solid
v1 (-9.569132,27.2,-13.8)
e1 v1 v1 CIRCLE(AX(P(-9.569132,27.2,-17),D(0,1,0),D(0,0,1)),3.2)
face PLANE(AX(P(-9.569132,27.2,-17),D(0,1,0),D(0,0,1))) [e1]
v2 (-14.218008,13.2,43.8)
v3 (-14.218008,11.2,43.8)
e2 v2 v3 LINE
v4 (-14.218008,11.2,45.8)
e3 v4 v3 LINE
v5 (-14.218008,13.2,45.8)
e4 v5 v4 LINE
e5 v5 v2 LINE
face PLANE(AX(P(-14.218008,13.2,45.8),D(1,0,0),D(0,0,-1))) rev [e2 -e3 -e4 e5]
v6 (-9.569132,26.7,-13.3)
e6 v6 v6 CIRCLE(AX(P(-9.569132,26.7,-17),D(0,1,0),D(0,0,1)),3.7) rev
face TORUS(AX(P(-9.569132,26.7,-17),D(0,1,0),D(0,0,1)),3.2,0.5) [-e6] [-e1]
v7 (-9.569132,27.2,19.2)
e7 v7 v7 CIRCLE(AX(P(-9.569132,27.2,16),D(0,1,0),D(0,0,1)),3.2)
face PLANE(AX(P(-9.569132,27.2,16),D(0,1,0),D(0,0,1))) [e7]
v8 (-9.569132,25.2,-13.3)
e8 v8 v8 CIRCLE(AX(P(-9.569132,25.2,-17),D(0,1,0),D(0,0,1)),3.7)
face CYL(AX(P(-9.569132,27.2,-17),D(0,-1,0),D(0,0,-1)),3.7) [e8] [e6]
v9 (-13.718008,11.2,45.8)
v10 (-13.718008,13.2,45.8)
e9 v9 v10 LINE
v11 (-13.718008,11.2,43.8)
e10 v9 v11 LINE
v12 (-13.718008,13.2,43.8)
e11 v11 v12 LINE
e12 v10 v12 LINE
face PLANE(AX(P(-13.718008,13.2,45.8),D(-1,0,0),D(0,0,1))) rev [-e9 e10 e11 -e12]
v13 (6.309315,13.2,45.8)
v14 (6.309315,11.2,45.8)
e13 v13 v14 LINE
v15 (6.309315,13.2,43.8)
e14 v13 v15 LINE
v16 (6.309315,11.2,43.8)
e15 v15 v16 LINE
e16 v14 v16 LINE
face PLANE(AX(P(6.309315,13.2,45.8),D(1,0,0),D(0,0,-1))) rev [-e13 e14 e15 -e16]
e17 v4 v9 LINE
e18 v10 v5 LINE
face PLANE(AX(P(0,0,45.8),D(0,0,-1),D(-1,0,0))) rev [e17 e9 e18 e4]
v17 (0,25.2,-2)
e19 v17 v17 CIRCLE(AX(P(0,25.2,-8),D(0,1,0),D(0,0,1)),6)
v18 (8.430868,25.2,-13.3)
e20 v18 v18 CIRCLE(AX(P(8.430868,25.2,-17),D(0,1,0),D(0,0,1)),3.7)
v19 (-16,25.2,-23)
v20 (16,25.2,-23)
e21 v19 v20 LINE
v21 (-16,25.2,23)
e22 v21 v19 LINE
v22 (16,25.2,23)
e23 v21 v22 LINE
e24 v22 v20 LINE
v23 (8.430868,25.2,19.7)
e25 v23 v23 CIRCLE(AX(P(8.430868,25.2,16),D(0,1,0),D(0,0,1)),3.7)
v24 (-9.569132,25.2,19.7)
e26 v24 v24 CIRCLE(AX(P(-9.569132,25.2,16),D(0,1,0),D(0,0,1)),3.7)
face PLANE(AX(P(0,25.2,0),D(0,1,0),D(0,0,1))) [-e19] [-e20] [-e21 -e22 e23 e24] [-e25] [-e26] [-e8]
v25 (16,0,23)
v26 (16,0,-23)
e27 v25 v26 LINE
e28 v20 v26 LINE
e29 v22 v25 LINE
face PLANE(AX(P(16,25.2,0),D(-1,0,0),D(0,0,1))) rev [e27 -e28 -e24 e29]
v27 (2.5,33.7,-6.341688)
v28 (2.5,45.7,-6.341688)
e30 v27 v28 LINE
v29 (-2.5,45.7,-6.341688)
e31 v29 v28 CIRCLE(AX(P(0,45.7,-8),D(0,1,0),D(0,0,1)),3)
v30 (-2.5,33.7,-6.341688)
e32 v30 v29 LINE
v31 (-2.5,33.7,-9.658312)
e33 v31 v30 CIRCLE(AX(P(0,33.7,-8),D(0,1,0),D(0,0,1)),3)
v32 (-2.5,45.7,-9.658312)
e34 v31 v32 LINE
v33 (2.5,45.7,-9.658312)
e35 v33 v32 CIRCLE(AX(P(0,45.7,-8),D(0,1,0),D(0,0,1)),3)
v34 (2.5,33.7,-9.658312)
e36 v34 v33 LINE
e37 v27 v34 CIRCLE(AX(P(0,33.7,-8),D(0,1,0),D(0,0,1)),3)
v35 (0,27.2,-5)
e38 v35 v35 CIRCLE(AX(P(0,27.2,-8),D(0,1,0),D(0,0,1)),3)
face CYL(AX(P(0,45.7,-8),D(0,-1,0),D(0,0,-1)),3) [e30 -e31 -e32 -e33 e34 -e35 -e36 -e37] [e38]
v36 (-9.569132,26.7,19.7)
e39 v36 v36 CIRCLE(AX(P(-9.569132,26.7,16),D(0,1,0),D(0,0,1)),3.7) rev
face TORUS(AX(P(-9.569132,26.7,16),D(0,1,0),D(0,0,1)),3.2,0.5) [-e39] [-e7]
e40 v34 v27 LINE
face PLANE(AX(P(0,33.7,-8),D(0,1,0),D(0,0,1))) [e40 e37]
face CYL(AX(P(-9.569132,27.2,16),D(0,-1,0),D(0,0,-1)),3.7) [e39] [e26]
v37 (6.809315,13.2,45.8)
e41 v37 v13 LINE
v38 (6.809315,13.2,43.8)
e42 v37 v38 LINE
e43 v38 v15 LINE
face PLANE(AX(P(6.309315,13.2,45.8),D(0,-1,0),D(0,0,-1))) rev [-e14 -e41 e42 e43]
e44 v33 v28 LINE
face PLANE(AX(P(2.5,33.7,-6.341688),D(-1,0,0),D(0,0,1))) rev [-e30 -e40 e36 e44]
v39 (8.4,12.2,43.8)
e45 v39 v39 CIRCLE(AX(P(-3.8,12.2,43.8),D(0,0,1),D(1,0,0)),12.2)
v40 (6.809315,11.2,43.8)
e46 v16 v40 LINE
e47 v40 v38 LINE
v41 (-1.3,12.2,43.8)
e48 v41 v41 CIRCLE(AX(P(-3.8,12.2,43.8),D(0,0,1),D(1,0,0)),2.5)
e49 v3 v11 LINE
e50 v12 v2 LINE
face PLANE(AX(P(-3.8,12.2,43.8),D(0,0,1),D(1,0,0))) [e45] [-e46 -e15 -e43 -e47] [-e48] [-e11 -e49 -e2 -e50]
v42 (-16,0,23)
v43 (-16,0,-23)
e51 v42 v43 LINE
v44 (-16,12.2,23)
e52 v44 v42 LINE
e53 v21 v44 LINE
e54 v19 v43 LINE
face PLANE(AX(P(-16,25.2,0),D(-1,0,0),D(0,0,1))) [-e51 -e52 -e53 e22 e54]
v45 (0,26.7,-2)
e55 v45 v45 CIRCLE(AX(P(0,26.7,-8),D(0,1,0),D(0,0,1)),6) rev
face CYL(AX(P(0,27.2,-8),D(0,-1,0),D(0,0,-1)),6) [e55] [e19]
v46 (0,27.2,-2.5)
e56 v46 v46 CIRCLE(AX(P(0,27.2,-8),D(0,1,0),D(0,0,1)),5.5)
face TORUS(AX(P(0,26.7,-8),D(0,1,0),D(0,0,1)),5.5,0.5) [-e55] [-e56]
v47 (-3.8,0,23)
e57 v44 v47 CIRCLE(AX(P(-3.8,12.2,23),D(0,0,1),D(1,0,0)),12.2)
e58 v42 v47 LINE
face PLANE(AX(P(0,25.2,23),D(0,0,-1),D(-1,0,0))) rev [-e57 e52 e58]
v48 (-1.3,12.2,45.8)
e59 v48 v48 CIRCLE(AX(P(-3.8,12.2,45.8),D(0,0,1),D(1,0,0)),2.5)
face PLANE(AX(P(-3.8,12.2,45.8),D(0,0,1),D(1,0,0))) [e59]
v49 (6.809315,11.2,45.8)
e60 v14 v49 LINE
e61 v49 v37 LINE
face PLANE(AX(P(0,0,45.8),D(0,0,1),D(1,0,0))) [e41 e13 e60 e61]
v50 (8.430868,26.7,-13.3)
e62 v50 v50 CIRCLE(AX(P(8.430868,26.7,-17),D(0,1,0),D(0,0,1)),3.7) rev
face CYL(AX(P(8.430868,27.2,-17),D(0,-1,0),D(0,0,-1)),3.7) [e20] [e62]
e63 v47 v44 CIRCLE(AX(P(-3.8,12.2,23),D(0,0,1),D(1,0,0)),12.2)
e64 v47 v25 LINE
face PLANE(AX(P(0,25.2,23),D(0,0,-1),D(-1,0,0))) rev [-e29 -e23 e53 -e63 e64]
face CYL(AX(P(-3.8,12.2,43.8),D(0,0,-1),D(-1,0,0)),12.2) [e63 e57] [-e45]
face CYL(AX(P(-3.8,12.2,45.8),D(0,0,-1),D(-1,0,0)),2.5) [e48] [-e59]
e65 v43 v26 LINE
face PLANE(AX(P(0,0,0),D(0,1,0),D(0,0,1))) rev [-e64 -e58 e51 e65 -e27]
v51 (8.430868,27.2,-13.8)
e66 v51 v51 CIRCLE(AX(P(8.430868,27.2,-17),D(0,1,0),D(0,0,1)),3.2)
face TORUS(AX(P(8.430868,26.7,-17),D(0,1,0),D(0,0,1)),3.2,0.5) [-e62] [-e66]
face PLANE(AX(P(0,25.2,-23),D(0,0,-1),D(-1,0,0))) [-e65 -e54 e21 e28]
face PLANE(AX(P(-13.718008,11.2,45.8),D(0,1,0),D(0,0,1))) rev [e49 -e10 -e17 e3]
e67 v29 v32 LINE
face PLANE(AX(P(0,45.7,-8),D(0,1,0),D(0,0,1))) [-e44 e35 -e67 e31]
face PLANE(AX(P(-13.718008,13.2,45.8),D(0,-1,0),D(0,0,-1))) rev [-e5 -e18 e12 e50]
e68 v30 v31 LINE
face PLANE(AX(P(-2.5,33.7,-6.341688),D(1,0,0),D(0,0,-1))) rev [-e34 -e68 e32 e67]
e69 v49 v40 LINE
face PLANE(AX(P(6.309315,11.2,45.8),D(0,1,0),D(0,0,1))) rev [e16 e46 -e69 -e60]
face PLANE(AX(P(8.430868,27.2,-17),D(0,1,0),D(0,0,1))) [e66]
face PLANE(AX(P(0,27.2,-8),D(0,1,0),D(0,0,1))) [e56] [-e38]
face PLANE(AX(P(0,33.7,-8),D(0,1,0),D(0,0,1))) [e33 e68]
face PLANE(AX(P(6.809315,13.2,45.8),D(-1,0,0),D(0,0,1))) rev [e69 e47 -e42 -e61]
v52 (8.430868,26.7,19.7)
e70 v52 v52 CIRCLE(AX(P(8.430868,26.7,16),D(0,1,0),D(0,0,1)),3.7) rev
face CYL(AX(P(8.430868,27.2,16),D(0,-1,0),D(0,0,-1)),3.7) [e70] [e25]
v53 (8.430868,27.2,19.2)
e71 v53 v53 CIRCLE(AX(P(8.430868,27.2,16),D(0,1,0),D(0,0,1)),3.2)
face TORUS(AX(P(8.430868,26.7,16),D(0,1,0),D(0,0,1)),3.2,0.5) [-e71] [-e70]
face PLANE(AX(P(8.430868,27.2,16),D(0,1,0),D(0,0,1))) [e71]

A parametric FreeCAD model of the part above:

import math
import FreeCAD as App
import Part
import Sketcher
from FreeCAD import Vector
Q = App.Units.Quantity


def edges_at(feature, points):
    """Names of the edges that pass closest to the given points."""
    edges = feature.Shape.Edges
    near = lambda p: min(range(len(edges)), key=lambda i: edges[i].distToShape(Part.Vertex(*p))[0])
    return sorted({f"Edge{near(p) + 1}" for p in points})


def add_polygon(sketch, points):
    """Adds a closed chain of lines whose ends are joined by coincident constraints."""
    first, n = sketch.GeometryCount, len(points)
    for a, b in zip(points, points[1:] + points[:1]):
        sketch.addGeometry(Part.LineSegment(App.Vector(*a, 0), App.Vector(*b, 0)), False)
    for i in range(n):
        sketch.addConstraint(Sketcher.Constraint("Coincident", first + i, 2, first + (i + 1) % n, 1))

doc = App.newDocument("Part")
params = doc.addObject("Spreadsheet::Sheet", "Params")
for row, (alias, value) in enumerate([
    ("sketch1_width", "32 mm"),
    ("sketch1_height", "46 mm"),
    ("pad1_length", "25.2 mm"),
    ("sketch2_diameter", "12 mm"),
    ("sketch2_diameter2", "7.4 mm"),
    ("pad2_length", "2 mm"),
    ("sketch3_diameter", "24.4 mm"),
    ("pad3_length", "20.8 mm"),
    ("sketch4_diameter", "5 mm"),
    ("pad4_length", "2 mm"),
    ("sketch5_height", "2 mm"),
    ("sketch5_width", "0.5 mm"),
    ("pad5_length", "2 mm"),
    ("sketch6_diameter", "6 mm"),
    ("pad6_length", "18.5 mm"),
    ("sketch7_radius", "3 mm"),
    ("pocket1_length", "12 mm"),
    ("fillet_radius", "0.5 mm"),
], start=1):
    params.set(f"A{row}", alias)
    params.set(f"B{row}", "=" + value)
    params.setAlias(f"B{row}", alias)

body = doc.addObject("PartDesign::Body", "Body")

sketch1 = doc.addObject("Sketcher::SketchObject", "Sketch")
body.addObject(sketch1)
sketch1.AttachmentSupport = (doc.XZ_Plane, [""])
sketch1.MapMode = "FlatFace"
add_polygon(sketch1, [(-16, -23), (-16, 23), (16, 23), (16, -23)])
sketch1.addConstraint([
    Sketcher.Constraint("Vertical", 0),
    Sketcher.Constraint("Horizontal", 1),
    Sketcher.Constraint("Vertical", 2),
    Sketcher.Constraint("Horizontal", 3),
    Sketcher.Constraint("Symmetric", 0, 2, 2, 2, -1, 1),
    Sketcher.Constraint("DistanceX", 1, 1, 1, 2, Q("32 mm")),
    Sketcher.Constraint("DistanceY", 0, 1, 0, 2, Q("46 mm")),
])
sketch1.setExpression("Constraints[9]", "Params.sketch1_width")
sketch1.setExpression("Constraints[10]", "Params.sketch1_height")
pad1 = doc.addObject("PartDesign::Pad", "Pad")
body.addObject(pad1)
pad1.Profile = sketch1
pad1.setExpression("Length", "Params.pad1_length")
pad1.Reversed = True

sketch2 = doc.addObject("Sketcher::SketchObject", "Sketch001")
body.addObject(sketch2)
sketch2.AttachmentSupport = (doc.XZ_Plane, [""])
sketch2.MapMode = "FlatFace"
sketch2.AttachmentOffset = App.Placement(Vector(0, 0, -25.2), App.Rotation())
sketch2.addGeometry([
    Part.Circle(Vector(-9.569132, -17, 0), Vector(0, 0, 1), 3.7),
    Part.Circle(Vector(8.430868, -17, 0), Vector(0, 0, 1), 3.7),
    Part.Circle(Vector(8.430868, 16, 0), Vector(0, 0, 1), 3.7),
    Part.Circle(Vector(-9.569132, 16, 0), Vector(0, 0, 1), 3.7),
    Part.Circle(Vector(0, -8, 0), Vector(0, 0, 1), 6),
], False)
sketch2.addConstraint([
    Sketcher.Constraint("Equal", 0, 1),
    Sketcher.Constraint("Equal", 1, 2),
    Sketcher.Constraint("Equal", 2, 3),
    Sketcher.Constraint("PointOnObject", 4, 3, -2),
    Sketcher.Constraint("Horizontal", 0, 3, 1, 3),
    Sketcher.Constraint("Horizontal", 2, 3, 3, 3),
    Sketcher.Constraint("Vertical", 1, 3, 2, 3),
    Sketcher.Constraint("Vertical", 0, 3, 3, 3),
    Sketcher.Constraint("Diameter", 4, Q("12 mm")),
    Sketcher.Constraint("Diameter", 0, Q("7.4 mm")),
    Sketcher.Constraint("DistanceY", 0, 3, -1, 1, Q("17 mm")),
    Sketcher.Constraint("DistanceY", -1, 1, 2, 3, Q("16 mm")),
    Sketcher.Constraint("DistanceY", 4, 3, -1, 1, Q("8 mm")),
    Sketcher.Constraint("DistanceX", 0, 3, 1, 3, Q("18 mm")),
    Sketcher.Constraint("DistanceX", 0, 3, -1, 1, Q("9.569132 mm")),
])
sketch2.setExpression("Constraints[8]", "Params.sketch2_diameter")
sketch2.setExpression("Constraints[9]", "Params.sketch2_diameter2")
pad2 = doc.addObject("PartDesign::Pad", "Pad001")
body.addObject(pad2)
pad2.Profile = sketch2
pad2.setExpression("Length", "Params.pad2_length")
pad2.Reversed = True

sketch3 = doc.addObject("Sketcher::SketchObject", "Sketch002")
body.addObject(sketch3)
sketch3.AttachmentSupport = (doc.XY_Plane, [""])
sketch3.MapMode = "FlatFace"
sketch3.AttachmentOffset = App.Placement(Vector(0, 0, 23), App.Rotation())
sketch3.addGeometry(Part.Circle(Vector(-3.8, 12.2, 0), Vector(0, 0, 1), 12.2), False)
sketch3.addConstraint([
    Sketcher.Constraint("Diameter", 0, Q("24.4 mm")),
    Sketcher.Constraint("DistanceX", 0, 3, -1, 1, Q("3.8 mm")),
    Sketcher.Constraint("DistanceY", -1, 1, 0, 3, Q("12.2 mm")),
])
sketch3.setExpression("Constraints[0]", "Params.sketch3_diameter")
pad3 = doc.addObject("PartDesign::Pad", "Pad002")
body.addObject(pad3)
pad3.Profile = sketch3
pad3.setExpression("Length", "Params.pad3_length")

sketch4 = doc.addObject("Sketcher::SketchObject", "Sketch003")
body.addObject(sketch4)
sketch4.AttachmentSupport = (doc.XY_Plane, [""])
sketch4.MapMode = "FlatFace"
sketch4.AttachmentOffset = App.Placement(Vector(0, 0, 43.8), App.Rotation())
sketch4.addGeometry(Part.Circle(Vector(-3.8, 12.2, 0), Vector(0, 0, 1), 2.5), False)
sketch4.addConstraint([
    Sketcher.Constraint("Diameter", 0, Q("5 mm")),
    Sketcher.Constraint("DistanceX", 0, 3, -1, 1, Q("3.8 mm")),
    Sketcher.Constraint("DistanceY", -1, 1, 0, 3, Q("12.2 mm")),
])
sketch4.setExpression("Constraints[0]", "Params.sketch4_diameter")
pad4 = doc.addObject("PartDesign::Pad", "Pad003")
body.addObject(pad4)
pad4.Profile = sketch4
pad4.setExpression("Length", "Params.pad4_length")

sketch5 = doc.addObject("Sketcher::SketchObject", "Sketch004")
body.addObject(sketch5)
sketch5.AttachmentSupport = (doc.XY_Plane, [""])
sketch5.MapMode = "FlatFace"
sketch5.AttachmentOffset = App.Placement(Vector(0, 0, 43.8), App.Rotation())
add_polygon(sketch5, [(6.309315, 13.2), (6.309315, 11.2), (6.809315, 11.2), (6.809315, 13.2)])
add_polygon(sketch5, [(-14.218008, 13.2), (-14.218008, 11.2), (-13.718008, 11.2), (-13.718008, 13.2)])
sketch5.addConstraint([
    Sketcher.Constraint("Vertical", 0),
    Sketcher.Constraint("Horizontal", 1),
    Sketcher.Constraint("Vertical", 2),
    Sketcher.Constraint("Horizontal", 3),
    Sketcher.Constraint("Vertical", 4),
    Sketcher.Constraint("Horizontal", 5),
    Sketcher.Constraint("Vertical", 6),
    Sketcher.Constraint("Horizontal", 7),
    Sketcher.Constraint("Horizontal", 1, 2, 4, 2),
    Sketcher.Constraint("Horizontal", 3, 2, 6, 2),
    Sketcher.Constraint("Equal", 3, 5),
    Sketcher.Constraint("DistanceY", 0, 2, 0, 1, Q("2 mm")),
    Sketcher.Constraint("DistanceX", 1, 1, 1, 2, Q("0.5 mm")),
    Sketcher.Constraint("DistanceY", -1, 1, 0, 2, Q("11.2 mm")),
    Sketcher.Constraint("DistanceX", 4, 2, -1, 1, Q("14.218008 mm")),
    Sketcher.Constraint("DistanceX", -1, 1, 0, 2, Q("6.309315 mm")),
])
sketch5.setExpression("Constraints[19]", "Params.sketch5_height")
sketch5.setExpression("Constraints[20]", "Params.sketch5_width")
pad5 = doc.addObject("PartDesign::Pad", "Pad004")
body.addObject(pad5)
pad5.Profile = sketch5
pad5.setExpression("Length", "Params.pad5_length")

sketch6 = doc.addObject("Sketcher::SketchObject", "Sketch005")
body.addObject(sketch6)
sketch6.AttachmentSupport = (doc.XZ_Plane, [""])
sketch6.MapMode = "FlatFace"
sketch6.AttachmentOffset = App.Placement(Vector(0, 0, -27.2), App.Rotation())
sketch6.addGeometry(Part.Circle(Vector(0, -8, 0), Vector(0, 0, 1), 3), False)
sketch6.addConstraint([
    Sketcher.Constraint("PointOnObject", 0, 3, -2),
    Sketcher.Constraint("Diameter", 0, Q("6 mm")),
    Sketcher.Constraint("DistanceY", 0, 3, -1, 1, Q("8 mm")),
])
sketch6.setExpression("Constraints[1]", "Params.sketch6_diameter")
pad6 = doc.addObject("PartDesign::Pad", "Pad005")
body.addObject(pad6)
pad6.Profile = sketch6
pad6.setExpression("Length", "Params.pad6_length")
pad6.Reversed = True

sketch7 = doc.addObject("Sketcher::SketchObject", "Sketch006")
body.addObject(sketch7)
sketch7.AttachmentSupport = (doc.XZ_Plane, [""])
sketch7.MapMode = "FlatFace"
sketch7.AttachmentOffset = App.Placement(Vector(0, 0, -45.7), App.Rotation())
sketch7.addGeometry([
    Part.LineSegment(Vector(-2.5, -6.341688, 0), Vector(-2.5, -9.658312, 0)),
    Part.ArcOfCircle(Part.Circle(Vector(0, -8, 0), Vector(0, 0, 1), 3), math.radians(146.44269), math.radians(213.55731)),
    Part.LineSegment(Vector(2.5, -9.658312, 0), Vector(2.5, -6.341688, 0)),
    Part.ArcOfCircle(Part.Circle(Vector(0, -8, 0), Vector(0, 0, 1), 3), math.radians(-33.55731), math.radians(33.55731)),
], False)
sketch7.addConstraint([
    Sketcher.Constraint("Coincident", 0, 1, 1, 1),
    Sketcher.Constraint("Coincident", 1, 2, 0, 2),
    Sketcher.Constraint("Coincident", 2, 1, 3, 1),
    Sketcher.Constraint("Coincident", 3, 2, 2, 2),
    Sketcher.Constraint("Vertical", 0),
    Sketcher.Constraint("Vertical", 2),
    Sketcher.Constraint("Coincident", 3, 3, 1, 3),
    Sketcher.Constraint("Equal", 1, 3),
    Sketcher.Constraint("Symmetric", 1, 2, 2, 1, -2),
    Sketcher.Constraint("Radius", 1, Q("3 mm")),
    Sketcher.Constraint("DistanceY", 1, 3, -1, 1, Q("8 mm")),
    Sketcher.Constraint("DistanceX", 1, 2, 2, 1, Q("5 mm")),
])
sketch7.setExpression("Constraints[9]", "Params.sketch7_radius")
pocket1 = doc.addObject("PartDesign::Pocket", "Pocket")
body.addObject(pocket1)
pocket1.Profile = sketch7
pocket1.setExpression("Length", "Params.pocket1_length")
pocket1.Reversed = True
doc.recompute()

fillet = doc.addObject("PartDesign::Fillet", "Fillet")
body.addObject(fillet)
fillet.Base = (pocket1, edges_at(pocket1, [
    (-13.269, 27.2, -17),
    (4.731, 27.2, -17),
    (4.731, 27.2, 16),
    (-13.269, 27.2, 16),
    (-6, 27.2, -8),
]))
fillet.setExpression("Radius", "Params.fillet_radius")

doc.recompute()
